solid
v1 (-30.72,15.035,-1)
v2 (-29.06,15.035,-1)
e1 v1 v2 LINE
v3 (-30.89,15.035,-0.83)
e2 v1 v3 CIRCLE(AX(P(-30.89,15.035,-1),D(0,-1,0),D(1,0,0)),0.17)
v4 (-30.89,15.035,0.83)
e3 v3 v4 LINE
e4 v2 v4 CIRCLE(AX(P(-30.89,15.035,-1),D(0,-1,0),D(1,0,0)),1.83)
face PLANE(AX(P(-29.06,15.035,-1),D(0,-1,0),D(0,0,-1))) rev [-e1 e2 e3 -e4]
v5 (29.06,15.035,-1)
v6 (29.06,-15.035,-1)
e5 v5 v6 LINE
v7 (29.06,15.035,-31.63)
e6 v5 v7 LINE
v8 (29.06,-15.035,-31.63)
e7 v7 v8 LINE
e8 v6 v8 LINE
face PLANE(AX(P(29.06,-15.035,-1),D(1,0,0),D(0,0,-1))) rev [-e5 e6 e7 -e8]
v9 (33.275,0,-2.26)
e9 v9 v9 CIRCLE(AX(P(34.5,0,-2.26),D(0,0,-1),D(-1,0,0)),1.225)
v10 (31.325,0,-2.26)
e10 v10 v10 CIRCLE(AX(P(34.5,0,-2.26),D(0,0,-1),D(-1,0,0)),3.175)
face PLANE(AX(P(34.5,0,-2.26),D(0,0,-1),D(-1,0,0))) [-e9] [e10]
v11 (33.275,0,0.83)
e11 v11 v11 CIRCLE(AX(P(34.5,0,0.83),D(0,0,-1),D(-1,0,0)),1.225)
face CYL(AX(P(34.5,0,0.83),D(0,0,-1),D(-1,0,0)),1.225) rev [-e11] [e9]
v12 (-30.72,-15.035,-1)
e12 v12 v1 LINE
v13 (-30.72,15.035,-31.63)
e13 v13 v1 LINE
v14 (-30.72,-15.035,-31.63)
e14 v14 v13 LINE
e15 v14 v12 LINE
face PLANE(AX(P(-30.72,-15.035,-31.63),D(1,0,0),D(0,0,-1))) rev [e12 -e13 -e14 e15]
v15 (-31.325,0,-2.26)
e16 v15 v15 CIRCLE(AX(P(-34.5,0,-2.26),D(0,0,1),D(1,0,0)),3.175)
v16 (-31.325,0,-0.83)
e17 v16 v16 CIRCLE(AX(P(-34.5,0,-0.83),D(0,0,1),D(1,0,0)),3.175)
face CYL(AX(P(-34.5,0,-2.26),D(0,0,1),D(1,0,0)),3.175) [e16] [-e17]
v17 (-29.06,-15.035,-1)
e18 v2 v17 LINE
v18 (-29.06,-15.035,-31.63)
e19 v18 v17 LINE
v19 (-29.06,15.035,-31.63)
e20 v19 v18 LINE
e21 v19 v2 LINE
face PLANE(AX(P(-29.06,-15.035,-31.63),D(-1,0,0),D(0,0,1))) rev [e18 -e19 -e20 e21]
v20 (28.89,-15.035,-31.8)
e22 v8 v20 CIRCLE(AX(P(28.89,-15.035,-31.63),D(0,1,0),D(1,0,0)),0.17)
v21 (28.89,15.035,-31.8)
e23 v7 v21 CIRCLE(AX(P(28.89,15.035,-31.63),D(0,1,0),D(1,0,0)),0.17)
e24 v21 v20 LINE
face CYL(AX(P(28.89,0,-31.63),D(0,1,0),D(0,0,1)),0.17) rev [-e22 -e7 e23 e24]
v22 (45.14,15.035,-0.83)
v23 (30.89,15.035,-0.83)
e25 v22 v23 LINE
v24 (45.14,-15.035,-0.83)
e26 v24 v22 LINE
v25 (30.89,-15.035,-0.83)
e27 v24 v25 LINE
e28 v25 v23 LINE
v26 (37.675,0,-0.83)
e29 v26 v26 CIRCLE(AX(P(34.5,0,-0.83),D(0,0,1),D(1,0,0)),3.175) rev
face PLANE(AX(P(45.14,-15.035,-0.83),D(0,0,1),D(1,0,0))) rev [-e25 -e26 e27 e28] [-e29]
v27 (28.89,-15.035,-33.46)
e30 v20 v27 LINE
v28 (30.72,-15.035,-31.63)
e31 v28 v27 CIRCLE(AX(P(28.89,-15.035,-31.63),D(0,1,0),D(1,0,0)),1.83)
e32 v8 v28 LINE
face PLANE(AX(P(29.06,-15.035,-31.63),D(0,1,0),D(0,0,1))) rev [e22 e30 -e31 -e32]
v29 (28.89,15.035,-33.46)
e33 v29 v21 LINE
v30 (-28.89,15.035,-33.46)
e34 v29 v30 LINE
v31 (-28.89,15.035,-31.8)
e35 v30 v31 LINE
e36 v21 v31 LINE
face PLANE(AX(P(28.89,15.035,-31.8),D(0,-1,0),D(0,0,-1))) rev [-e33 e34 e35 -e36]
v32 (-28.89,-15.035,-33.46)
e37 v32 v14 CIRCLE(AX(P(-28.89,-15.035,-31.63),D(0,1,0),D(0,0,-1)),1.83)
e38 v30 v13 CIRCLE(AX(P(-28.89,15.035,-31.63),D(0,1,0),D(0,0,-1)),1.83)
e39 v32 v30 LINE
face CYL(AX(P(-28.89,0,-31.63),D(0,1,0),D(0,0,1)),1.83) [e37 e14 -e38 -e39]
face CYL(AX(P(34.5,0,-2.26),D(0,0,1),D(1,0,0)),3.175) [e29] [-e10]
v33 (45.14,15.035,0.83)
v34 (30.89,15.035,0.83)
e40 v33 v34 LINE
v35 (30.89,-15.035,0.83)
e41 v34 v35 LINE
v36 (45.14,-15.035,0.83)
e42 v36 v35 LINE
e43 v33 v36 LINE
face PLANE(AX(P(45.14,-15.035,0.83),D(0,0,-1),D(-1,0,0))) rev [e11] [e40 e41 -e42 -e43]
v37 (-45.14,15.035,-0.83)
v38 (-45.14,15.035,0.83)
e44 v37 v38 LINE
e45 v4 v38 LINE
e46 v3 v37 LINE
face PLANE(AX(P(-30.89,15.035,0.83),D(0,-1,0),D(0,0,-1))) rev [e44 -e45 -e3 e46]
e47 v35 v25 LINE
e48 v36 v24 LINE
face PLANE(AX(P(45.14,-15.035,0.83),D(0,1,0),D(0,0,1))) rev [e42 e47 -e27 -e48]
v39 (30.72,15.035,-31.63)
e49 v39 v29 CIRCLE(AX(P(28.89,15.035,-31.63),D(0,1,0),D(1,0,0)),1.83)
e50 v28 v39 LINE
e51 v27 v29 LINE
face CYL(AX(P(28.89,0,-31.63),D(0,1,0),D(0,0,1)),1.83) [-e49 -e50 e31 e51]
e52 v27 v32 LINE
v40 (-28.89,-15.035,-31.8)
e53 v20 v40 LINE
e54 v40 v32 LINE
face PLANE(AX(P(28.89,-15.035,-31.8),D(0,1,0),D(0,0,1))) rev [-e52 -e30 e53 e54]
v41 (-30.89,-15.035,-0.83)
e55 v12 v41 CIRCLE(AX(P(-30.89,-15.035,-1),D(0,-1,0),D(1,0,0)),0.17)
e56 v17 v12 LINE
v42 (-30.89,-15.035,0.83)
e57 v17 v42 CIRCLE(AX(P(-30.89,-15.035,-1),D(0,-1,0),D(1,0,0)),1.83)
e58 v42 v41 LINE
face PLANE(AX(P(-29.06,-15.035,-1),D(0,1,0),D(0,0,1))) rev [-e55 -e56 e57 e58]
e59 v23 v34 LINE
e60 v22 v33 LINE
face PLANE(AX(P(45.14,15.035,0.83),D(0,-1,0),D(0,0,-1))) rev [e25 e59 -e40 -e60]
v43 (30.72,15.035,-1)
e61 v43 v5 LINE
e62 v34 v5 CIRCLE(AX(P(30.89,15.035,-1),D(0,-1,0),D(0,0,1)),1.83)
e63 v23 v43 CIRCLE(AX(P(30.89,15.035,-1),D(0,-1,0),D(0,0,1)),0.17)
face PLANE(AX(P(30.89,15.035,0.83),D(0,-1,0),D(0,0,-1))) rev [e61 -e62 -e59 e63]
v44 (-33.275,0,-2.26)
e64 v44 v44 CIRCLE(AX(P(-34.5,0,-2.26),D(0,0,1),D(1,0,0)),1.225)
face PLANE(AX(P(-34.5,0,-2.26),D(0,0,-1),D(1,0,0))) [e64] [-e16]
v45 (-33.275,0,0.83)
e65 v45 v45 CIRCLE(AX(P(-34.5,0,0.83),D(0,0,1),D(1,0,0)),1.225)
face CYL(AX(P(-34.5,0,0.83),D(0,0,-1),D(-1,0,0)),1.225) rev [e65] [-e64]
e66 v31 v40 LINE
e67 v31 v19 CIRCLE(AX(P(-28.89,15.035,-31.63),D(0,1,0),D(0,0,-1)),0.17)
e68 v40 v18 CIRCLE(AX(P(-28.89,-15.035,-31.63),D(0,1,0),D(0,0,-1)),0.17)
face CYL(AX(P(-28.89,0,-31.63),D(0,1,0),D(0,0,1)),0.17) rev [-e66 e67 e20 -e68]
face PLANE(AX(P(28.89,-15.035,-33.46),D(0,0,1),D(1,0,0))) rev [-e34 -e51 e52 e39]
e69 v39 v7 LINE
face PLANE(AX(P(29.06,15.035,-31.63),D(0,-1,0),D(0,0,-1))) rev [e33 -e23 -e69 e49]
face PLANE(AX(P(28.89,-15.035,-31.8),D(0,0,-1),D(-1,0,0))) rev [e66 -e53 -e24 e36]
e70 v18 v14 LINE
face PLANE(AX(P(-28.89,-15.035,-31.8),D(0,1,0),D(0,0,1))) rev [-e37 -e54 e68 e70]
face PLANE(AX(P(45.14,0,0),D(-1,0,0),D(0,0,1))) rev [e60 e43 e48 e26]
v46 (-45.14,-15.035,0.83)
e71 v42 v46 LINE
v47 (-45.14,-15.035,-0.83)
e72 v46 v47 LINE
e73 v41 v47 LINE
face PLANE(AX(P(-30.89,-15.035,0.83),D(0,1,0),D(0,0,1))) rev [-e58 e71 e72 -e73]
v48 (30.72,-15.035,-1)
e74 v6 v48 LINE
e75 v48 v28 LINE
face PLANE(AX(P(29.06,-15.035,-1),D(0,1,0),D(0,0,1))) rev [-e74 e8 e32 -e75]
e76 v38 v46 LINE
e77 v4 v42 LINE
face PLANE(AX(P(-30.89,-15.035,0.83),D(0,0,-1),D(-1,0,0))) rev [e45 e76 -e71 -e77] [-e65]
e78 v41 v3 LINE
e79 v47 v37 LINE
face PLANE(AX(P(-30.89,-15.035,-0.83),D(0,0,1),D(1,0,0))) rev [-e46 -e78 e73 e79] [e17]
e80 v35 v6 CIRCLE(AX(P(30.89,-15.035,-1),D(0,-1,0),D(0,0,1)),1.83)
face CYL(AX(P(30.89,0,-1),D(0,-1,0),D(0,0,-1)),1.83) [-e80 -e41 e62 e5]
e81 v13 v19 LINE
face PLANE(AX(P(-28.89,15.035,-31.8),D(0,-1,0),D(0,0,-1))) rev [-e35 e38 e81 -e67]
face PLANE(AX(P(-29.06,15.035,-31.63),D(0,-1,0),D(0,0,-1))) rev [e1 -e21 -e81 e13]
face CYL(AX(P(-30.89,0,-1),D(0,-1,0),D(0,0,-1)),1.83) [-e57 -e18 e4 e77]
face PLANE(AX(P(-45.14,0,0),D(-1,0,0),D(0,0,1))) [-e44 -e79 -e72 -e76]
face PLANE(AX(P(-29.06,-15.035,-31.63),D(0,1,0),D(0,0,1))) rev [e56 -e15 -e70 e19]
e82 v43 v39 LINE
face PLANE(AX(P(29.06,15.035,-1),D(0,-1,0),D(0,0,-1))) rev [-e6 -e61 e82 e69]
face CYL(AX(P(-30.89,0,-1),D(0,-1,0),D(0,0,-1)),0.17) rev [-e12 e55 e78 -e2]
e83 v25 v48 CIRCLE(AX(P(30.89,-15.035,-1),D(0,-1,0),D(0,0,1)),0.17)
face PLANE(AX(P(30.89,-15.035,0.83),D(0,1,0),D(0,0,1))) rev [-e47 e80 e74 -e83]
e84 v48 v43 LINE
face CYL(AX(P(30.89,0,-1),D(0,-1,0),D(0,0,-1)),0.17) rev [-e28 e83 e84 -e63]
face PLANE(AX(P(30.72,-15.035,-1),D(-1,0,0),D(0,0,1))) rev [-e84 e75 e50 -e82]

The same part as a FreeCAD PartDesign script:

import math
import FreeCAD as App
import Part
import Sketcher


def add_polygon(sketch, points):
    """Adds a closed chain of lines whose ends are joined by coincident constraints."""
    first, n = sketch.GeometryCount, len(points)
    for a, b in zip(points, points[1:] + points[:1]):
        sketch.addGeometry(Part.LineSegment(App.Vector(*a, 0), App.Vector(*b, 0)), False)
    for i in range(n):
        sketch.addConstraint(Sketcher.Constraint("Coincident", first + i, 2, first + (i + 1) % n, 1))

doc = App.newDocument("Part")
body = doc.addObject("PartDesign::Body", "Body")

sketch1 = body.newObject("Sketcher::SketchObject", "Sketch")
sketch1.AttachmentSupport = (doc.getObject("YZ_Plane"), [""])
sketch1.MapMode = "FlatFace"
sketch1.AttachmentOffset = App.Placement(App.Vector(0, 0, 45.14), App.Rotation())
add_polygon(sketch1, [(15, 0.8), (-15, 0.8), (-15, -0.8), (15, -0.8)])
sketch1.addConstraint([
    Sketcher.Constraint("Horizontal", 0),
    Sketcher.Constraint("Vertical", 1),
    Sketcher.Constraint("Horizontal", 2),
    Sketcher.Constraint("Vertical", 3),
    Sketcher.Constraint("Symmetric", 0, 2, 2, 2, -1, 1),
    Sketcher.Constraint("DistanceX", 0, 2, 0, 1, 30.07),
    Sketcher.Constraint("DistanceY", 1, 2, 1, 1, 1.66),
])

sketch2 = body.newObject("Sketcher::SketchObject", "Sketch001")
sketch2.AttachmentSupport = (doc.getObject("XZ_Plane"), [""])
sketch2.MapMode = "FlatFace"
sketch2.addGeometry([
    Part.LineSegment(App.Vector(-45.1, 0, 0), App.Vector(-30.9, 0, 0)),
    Part.ArcOfCircle(Part.Circle(App.Vector(-30.9, -1, 0), App.Vector(0, 0, 1), 1), math.radians(0), math.radians(90)),
    Part.LineSegment(App.Vector(-29.9, -1, 0), App.Vector(-29.9, -31.6, 0)),
    Part.ArcOfCircle(Part.Circle(App.Vector(-28.9, -31.6, 0), App.Vector(0, 0, 1), 1), math.radians(-180), math.radians(-90)),
    Part.LineSegment(App.Vector(-28.9, -32.6, 0), App.Vector(28.9, -32.6, 0)),
    Part.ArcOfCircle(Part.Circle(App.Vector(28.9, -31.6, 0), App.Vector(0, 0, 1), 1), math.radians(-90), math.radians(0)),
    Part.LineSegment(App.Vector(29.9, -31.6, 0), App.Vector(29.9, -1, 0)),
    Part.ArcOfCircle(Part.Circle(App.Vector(30.9, -1, 0), App.Vector(0, 0, 1), 1), math.radians(90), math.radians(180)),
    Part.LineSegment(App.Vector(30.9, 0, 0), App.Vector(45.1, 0, 0)),
], False)
sketch2.addConstraint([
    Sketcher.Constraint("Tangent", 0, 2, 1, 2),
    Sketcher.Constraint("Tangent", 1, 1, 2, 1),
    Sketcher.Constraint("Tangent", 2, 2, 3, 1),
    Sketcher.Constraint("Tangent", 3, 2, 4, 1),
    Sketcher.Constraint("Tangent", 4, 2, 5, 1),
    Sketcher.Constraint("Tangent", 5, 2, 6, 1),
    Sketcher.Constraint("Tangent", 6, 2, 7, 2),
    Sketcher.Constraint("Tangent", 7, 1, 8, 1),
    Sketcher.Constraint("Horizontal", 0),
    Sketcher.Constraint("Vertical", 2),
    Sketcher.Constraint("Horizontal", 4),
    Sketcher.Constraint("Vertical", 6),
    Sketcher.Constraint("Horizontal", 8),
    Sketcher.Constraint("Equal", 1, 3),
    Sketcher.Constraint("Equal", 3, 5),
    Sketcher.Constraint("Equal", 5, 7),
    Sketcher.Constraint("Symmetric", 0, 2, 7, 1, -1, 1),
    Sketcher.Constraint("Symmetric", 0, 1, 8, 2, -2),
    Sketcher.Constraint("Radius", 1, 1.0),
    Sketcher.Constraint("DistanceX", 0, 1, 0, 2, 14.25),
    Sketcher.Constraint("DistanceX", 4, 1, 4, 2, 57.78),
    Sketcher.Constraint("DistanceY", 2, 2, 2, 1, 30.63),
])
doc.recompute()

additivepipe = body.newObject("PartDesign::AdditivePipe", "AdditivePipe")
additivepipe.Profile = sketch1
additivepipe.Spine = (sketch2, ["Edge1", "Edge2", "Edge3", "Edge4", "Edge5", "Edge6", "Edge7", "Edge8", "Edge9"])

sketch3 = body.newObject("Sketcher::SketchObject", "Sketch002")
sketch3.AttachmentSupport = (doc.getObject("XY_Plane"), [""])
sketch3.MapMode = "FlatFace"
sketch3.AttachmentOffset = App.Placement(App.Vector(0, 0, -0.83), App.Rotation())
sketch3.addGeometry(Part.Circle(App.Vector(34.5, 0, 0), App.Vector(0, 0, 1), 1.2), False)
sketch3.addConstraint([
    Sketcher.Constraint("PointOnObject", 0, 3, -1),
    Sketcher.Constraint("Diameter", 0, 2.45),
    Sketcher.Constraint("DistanceX", -1, 1, 0, 3, 34.5),
])
pocket1 = body.newObject("PartDesign::Pocket", "Pocket")
pocket1.Profile = sketch3
pocket1.Type = "ThroughAll"
pocket1.Reversed = True

sketch4 = body.newObject("Sketcher::SketchObject", "Sketch003")
sketch4.AttachmentSupport = (doc.getObject("XY_Plane"), [""])
sketch4.MapMode = "FlatFace"
sketch4.AttachmentOffset = App.Placement(App.Vector(0, 0, -0.83), App.Rotation())
sketch4.addGeometry([
    Part.Circle(App.Vector(34.5, 0, 0), App.Vector(0, 0, 1), 3.2),
    Part.Circle(App.Vector(34.5, 0, 0), App.Vector(0, 0, 1), 1.2),
], False)
sketch4.addConstraint([
    Sketcher.Constraint("Coincident", 1, 3, 0, 3),
    Sketcher.Constraint("PointOnObject", 0, 3, -1),
    Sketcher.Constraint("Diameter", 0, 6.35),
    Sketcher.Constraint("Diameter", 1, 2.45),
    Sketcher.Constraint("DistanceX", -1, 1, 0, 3, 34.5),
])
pad1 = body.newObject("PartDesign::Pad", "Pad")
pad1.Profile = sketch4
pad1.Length = 1.43
pad1.Reversed = True
doc.recompute()

mirrored = body.newObject("PartDesign::Mirrored", "Mirrored")
mirrored.Originals = [pocket1, pad1]
mirrored.MirrorPlane = (doc.getObject("YZ_Plane"), [""])
body.Tip = mirrored

doc.recompute()
